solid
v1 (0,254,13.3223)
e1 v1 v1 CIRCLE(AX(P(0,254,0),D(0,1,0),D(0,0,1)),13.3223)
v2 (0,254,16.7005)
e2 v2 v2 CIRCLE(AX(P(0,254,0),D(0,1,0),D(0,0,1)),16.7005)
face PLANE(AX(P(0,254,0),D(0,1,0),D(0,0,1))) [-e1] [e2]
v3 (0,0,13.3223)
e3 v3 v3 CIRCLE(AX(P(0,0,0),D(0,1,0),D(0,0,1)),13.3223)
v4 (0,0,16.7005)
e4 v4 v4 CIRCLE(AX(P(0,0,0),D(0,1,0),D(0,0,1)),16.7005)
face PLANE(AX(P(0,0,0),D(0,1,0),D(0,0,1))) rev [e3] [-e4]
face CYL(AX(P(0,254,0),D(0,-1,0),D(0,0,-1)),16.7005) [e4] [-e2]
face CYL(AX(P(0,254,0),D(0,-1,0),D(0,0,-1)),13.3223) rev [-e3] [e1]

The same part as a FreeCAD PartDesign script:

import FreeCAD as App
import Part
import Sketcher
Q = App.Units.Quantity

doc = App.newDocument("Part")
params = doc.addObject("Spreadsheet::Sheet", "Params")
for row, (alias, value) in enumerate([
    ("sketch1_diameter", "1.315 in"),
    ("sketch1_diameter2", "1.049 in"),
    ("pad1_length", "10 in"),
], start=1):
    params.set(f"A{row}", alias)
    params.set(f"B{row}", "=" + value)
    params.setAlias(f"B{row}", alias)

body = doc.addObject("PartDesign::Body", "Body")

sketch1 = body.newObject("Sketcher::SketchObject", "Sketch")
sketch1.AttachmentSupport = (doc.getObject("XZ_Plane"), [""])
sketch1.MapMode = "FlatFace"
sketch1.addGeometry(Part.Circle(App.Vector(0, 0, 0), App.Vector(0, 0, 1), 17), False)
sketch1.addGeometry(Part.Circle(App.Vector(0, 0, 0), App.Vector(0, 0, 1), 13), False)
sketch1.addConstraint(Sketcher.Constraint("Coincident", 0, 3, -1, 1))
sketch1.addConstraint(Sketcher.Constraint("Coincident", 1, 3, -1, 1))
sketch1.addConstraint(Sketcher.Constraint("Diameter", 0, Q("1.315 in")))
sketch1.addConstraint(Sketcher.Constraint("Diameter", 1, Q("1.049 in")))
sketch1.setExpression("Constraints[2]", "Params.sketch1_diameter")
sketch1.setExpression("Constraints[3]", "Params.sketch1_diameter2")
pad1 = body.newObject("PartDesign::Pad", "Pad")
pad1.Profile = sketch1
pad1.setExpression("Length", "Params.pad1_length")
pad1.Reversed = True

doc.recompute()
